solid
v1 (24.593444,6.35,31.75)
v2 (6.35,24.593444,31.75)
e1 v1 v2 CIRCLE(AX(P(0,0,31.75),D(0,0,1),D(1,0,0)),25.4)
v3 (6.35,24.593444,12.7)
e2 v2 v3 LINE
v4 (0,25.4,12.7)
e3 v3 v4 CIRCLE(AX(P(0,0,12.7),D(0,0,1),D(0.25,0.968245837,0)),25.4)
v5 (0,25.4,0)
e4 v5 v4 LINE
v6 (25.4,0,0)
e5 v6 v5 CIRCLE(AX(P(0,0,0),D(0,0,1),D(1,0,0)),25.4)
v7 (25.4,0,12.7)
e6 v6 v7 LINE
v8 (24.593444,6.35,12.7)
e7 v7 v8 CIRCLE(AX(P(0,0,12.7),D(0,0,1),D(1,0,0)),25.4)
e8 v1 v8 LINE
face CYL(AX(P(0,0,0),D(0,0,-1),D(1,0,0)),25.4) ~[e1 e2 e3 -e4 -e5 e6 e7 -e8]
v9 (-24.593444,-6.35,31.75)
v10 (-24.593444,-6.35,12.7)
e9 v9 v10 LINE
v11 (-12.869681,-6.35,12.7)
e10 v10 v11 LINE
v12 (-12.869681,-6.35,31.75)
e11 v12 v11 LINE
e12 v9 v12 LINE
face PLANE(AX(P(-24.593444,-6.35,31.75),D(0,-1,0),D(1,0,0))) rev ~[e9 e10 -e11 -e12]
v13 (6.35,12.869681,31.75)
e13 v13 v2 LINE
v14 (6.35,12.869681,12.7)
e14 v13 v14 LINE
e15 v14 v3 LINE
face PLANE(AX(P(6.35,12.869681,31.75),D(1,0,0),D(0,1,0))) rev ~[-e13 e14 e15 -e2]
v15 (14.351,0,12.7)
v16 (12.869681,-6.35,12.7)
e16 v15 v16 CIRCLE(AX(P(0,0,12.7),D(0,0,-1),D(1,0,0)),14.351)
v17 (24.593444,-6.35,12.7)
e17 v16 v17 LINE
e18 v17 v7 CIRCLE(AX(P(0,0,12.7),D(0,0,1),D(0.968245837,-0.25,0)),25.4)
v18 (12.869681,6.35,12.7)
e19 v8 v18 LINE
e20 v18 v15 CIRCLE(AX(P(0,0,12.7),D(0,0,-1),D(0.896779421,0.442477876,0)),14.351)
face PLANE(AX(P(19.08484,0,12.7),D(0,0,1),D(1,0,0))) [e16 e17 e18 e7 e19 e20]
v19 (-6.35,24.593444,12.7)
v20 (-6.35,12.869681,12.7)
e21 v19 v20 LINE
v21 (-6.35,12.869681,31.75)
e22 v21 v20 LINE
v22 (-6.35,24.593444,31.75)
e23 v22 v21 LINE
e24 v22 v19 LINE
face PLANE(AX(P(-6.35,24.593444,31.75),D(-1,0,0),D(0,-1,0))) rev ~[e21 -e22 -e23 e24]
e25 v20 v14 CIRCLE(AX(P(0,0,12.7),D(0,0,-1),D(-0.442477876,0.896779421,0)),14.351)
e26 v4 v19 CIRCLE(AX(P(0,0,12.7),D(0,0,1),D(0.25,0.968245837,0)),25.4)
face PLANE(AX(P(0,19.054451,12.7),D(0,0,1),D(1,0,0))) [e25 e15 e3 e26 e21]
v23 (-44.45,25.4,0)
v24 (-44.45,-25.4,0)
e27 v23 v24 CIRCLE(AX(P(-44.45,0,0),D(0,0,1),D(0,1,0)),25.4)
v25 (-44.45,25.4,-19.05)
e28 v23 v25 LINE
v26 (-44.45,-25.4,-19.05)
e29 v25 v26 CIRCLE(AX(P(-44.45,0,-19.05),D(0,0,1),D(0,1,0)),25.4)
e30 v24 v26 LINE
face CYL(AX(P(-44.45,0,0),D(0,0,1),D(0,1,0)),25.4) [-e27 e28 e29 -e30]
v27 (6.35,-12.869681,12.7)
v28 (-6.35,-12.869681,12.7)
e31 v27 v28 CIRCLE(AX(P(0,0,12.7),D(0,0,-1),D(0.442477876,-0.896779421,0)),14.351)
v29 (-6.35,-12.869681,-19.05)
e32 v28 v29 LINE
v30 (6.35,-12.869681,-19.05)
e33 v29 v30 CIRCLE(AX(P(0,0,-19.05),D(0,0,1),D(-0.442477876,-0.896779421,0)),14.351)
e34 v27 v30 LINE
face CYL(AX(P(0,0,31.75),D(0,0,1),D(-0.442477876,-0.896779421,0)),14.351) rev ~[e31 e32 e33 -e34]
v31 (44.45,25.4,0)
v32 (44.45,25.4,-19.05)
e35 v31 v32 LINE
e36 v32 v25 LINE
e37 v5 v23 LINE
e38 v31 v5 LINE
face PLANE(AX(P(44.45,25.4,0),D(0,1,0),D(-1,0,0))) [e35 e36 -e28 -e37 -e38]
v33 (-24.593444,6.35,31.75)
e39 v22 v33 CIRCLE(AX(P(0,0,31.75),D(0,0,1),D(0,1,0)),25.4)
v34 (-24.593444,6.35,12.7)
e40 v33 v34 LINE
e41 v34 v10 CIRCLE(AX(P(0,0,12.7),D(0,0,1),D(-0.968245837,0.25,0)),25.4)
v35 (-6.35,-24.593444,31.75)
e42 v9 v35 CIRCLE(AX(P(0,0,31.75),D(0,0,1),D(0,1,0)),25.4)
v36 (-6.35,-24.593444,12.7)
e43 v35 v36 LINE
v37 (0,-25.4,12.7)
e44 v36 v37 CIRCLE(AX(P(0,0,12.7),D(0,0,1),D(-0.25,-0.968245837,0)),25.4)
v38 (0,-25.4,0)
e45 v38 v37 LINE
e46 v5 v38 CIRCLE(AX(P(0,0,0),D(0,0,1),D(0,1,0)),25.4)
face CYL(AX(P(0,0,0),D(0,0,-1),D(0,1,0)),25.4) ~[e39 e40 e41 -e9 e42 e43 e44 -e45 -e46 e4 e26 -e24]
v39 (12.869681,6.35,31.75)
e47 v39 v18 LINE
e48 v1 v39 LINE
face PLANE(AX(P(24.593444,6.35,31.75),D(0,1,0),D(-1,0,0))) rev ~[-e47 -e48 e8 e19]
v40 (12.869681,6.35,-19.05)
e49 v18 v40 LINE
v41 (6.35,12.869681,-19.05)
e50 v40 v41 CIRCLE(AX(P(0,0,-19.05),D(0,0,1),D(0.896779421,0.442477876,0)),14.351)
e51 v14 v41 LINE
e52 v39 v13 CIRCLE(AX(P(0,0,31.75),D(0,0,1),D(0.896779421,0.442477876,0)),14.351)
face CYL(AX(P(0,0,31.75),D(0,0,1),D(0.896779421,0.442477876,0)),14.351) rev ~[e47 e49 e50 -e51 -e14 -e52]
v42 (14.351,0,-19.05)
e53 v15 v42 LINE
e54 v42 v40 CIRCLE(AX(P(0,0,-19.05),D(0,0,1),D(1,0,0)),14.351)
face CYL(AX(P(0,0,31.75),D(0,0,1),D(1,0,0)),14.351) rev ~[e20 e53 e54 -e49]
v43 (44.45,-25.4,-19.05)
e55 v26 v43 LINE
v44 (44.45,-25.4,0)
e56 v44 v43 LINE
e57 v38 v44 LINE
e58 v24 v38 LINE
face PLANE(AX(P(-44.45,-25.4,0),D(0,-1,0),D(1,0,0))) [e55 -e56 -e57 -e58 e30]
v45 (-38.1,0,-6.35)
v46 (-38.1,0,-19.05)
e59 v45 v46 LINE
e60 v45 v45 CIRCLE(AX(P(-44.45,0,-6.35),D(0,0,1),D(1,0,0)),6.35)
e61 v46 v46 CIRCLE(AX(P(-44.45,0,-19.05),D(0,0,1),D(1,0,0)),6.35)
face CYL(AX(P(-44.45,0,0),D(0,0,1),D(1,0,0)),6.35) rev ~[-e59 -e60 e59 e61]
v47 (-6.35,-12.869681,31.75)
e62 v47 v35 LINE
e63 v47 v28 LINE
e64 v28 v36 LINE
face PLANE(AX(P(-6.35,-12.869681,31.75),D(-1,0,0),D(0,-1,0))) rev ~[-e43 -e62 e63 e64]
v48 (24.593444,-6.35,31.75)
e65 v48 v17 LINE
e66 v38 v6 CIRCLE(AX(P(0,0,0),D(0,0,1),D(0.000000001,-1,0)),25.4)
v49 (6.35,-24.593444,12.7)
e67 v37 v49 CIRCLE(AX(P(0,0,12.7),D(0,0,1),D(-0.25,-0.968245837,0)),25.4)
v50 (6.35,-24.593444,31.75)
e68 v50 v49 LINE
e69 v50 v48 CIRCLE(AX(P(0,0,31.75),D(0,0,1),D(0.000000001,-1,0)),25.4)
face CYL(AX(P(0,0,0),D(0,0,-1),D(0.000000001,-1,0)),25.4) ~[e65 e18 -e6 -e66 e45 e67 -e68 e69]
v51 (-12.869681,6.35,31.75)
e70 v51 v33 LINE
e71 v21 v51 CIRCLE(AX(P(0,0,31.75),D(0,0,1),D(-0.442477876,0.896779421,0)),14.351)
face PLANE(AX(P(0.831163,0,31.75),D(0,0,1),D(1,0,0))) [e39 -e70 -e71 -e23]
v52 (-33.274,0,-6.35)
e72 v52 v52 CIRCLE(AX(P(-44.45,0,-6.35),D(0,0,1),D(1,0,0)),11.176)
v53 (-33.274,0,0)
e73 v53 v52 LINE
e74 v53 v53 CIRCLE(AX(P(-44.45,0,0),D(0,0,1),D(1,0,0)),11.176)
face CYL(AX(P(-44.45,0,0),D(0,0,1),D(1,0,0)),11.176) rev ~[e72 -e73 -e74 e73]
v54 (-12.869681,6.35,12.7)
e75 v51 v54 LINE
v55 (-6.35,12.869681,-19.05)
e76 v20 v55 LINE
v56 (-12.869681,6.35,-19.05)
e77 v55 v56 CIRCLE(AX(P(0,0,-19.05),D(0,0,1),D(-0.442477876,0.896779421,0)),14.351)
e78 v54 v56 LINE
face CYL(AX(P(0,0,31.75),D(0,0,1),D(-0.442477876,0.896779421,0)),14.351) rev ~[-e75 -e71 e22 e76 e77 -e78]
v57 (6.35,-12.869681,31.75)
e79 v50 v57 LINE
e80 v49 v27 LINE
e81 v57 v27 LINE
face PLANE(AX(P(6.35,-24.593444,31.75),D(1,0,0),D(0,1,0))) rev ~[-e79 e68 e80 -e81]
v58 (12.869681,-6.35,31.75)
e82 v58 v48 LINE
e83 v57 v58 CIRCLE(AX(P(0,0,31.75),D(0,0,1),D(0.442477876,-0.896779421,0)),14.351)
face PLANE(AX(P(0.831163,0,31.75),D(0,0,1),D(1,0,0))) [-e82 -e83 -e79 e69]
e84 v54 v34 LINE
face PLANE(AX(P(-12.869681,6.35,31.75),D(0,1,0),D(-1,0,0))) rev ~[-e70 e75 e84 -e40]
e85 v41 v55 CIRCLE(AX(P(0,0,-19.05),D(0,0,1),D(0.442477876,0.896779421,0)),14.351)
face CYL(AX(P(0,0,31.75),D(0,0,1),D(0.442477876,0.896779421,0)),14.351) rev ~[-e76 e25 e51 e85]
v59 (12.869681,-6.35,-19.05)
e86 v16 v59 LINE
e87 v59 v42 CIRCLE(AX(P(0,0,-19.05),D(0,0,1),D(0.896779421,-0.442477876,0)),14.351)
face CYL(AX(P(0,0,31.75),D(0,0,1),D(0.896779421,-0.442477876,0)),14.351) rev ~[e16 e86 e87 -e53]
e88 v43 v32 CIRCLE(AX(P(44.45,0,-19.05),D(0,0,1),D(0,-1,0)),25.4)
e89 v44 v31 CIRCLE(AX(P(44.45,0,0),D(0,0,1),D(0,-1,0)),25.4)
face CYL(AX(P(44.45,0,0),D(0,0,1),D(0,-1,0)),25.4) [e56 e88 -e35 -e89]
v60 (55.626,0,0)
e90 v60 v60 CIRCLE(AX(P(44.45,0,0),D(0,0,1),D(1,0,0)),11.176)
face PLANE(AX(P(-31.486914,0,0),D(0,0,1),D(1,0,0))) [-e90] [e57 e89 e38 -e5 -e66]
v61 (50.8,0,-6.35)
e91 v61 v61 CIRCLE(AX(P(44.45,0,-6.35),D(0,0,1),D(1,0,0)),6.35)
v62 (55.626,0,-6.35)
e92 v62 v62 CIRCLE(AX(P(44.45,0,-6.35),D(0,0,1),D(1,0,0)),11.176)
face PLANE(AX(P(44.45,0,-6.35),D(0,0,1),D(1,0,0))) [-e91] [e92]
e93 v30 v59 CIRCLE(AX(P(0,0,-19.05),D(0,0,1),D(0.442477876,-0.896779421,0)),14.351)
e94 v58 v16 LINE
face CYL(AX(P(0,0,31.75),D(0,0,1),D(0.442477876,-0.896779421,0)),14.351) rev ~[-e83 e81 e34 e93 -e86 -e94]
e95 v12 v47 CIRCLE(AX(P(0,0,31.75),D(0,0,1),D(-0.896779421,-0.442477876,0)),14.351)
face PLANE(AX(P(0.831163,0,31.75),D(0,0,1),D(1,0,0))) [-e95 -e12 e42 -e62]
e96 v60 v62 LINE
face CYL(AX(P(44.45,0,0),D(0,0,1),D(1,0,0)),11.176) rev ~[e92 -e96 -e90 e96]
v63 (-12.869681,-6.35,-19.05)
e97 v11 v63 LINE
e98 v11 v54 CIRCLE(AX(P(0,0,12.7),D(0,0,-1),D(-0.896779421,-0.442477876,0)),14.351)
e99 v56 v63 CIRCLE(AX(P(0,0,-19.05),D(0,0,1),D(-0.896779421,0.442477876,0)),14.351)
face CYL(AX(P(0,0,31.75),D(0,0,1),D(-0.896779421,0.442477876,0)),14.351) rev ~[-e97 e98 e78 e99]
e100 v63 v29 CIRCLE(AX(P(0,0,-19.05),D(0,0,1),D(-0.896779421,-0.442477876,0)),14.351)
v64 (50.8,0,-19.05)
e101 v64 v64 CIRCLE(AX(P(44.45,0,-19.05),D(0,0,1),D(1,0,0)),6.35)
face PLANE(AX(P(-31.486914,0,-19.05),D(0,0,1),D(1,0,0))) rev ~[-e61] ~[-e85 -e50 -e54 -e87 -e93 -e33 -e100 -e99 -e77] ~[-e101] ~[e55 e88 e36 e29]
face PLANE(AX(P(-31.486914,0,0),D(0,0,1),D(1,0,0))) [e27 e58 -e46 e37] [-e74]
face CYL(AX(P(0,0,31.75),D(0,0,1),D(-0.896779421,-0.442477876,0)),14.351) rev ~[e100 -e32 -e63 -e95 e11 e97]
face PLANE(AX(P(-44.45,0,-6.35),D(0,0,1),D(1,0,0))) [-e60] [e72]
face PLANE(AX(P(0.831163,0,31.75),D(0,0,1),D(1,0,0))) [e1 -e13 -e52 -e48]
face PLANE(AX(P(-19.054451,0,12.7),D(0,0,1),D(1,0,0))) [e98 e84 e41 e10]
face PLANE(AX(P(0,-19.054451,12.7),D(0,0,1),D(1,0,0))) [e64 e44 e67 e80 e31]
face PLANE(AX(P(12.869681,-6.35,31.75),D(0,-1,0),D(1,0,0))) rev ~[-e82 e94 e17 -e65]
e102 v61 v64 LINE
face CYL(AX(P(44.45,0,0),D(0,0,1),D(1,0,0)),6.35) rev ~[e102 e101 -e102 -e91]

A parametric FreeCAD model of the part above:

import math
import FreeCAD as App
import Part
import Sketcher
from FreeCAD import Vector
Q = App.Units.Quantity

doc = App.newDocument("Part")
body = doc.addObject("PartDesign::Body", "Body")

sketch1 = body.newObject("Sketcher::SketchObject", "Sketch")
sketch1.AttachmentSupport = (doc.getObject("XY_Plane"), [""])
sketch1.MapMode = "FlatFace"
sketch1.addGeometry([
    Part.ArcOfCircle(Part.Circle(Vector(-44, 0, 0), Vector(0, 0, 1), 25), math.radians(90), math.radians(270)),
    Part.LineSegment(Vector(-44, -25, 0), Vector(44, -25, 0)),
    Part.ArcOfCircle(Part.Circle(Vector(44, 0, 0), Vector(0, 0, 1), 25), math.radians(-90), math.radians(90)),
    Part.LineSegment(Vector(44, 25, 0), Vector(-44, 25, 0)),
    Part.Circle(Vector(-44, 0, 0), Vector(0, 0, 1), 6),
    Part.Circle(Vector(44, 0, 0), Vector(0, 0, 1), 6),
], False)
sketch1.addConstraint([
    Sketcher.Constraint("Tangent", 0, 2, 1, 1),
    Sketcher.Constraint("Tangent", 1, 2, 2, 1),
    Sketcher.Constraint("Tangent", 2, 2, 3, 1),
    Sketcher.Constraint("Tangent", 3, 2, 0, 1),
    Sketcher.Constraint("Horizontal", 1),
    Sketcher.Constraint("Horizontal", 3),
    Sketcher.Constraint("Coincident", 4, 3, 0, 3),
    Sketcher.Constraint("Coincident", 5, 3, 2, 3),
    Sketcher.Constraint("Equal", 4, 5),
    Sketcher.Constraint("Symmetric", 0, 3, 2, 3, -1, 1),
    Sketcher.Constraint("Radius", 0, Q("1 in")),
    Sketcher.Constraint("Diameter", 4, Q("0.5 in")),
    Sketcher.Constraint("DistanceX", 1, 1, 1, 2, Q("3.5 in")),
])
pad1 = body.newObject("PartDesign::Pad", "Pad")
pad1.Profile = sketch1
pad1.Length = Q("0.75 in")
pad1.Reversed = True

sketch2 = body.newObject("Sketcher::SketchObject", "Sketch001")
sketch2.AttachmentSupport = (doc.getObject("XY_Plane"), [""])
sketch2.MapMode = "FlatFace"
sketch2.addGeometry([
    Part.Circle(Vector(-44, 0, 0), Vector(0, 0, 1), 11),
    Part.Circle(Vector(-44, 0, 0), Vector(0, 0, 1), 6),
    Part.Circle(Vector(44, 0, 0), Vector(0, 0, 1), 11),
    Part.Circle(Vector(44, 0, 0), Vector(0, 0, 1), 6),
], False)
sketch2.addConstraint([
    Sketcher.Constraint("Coincident", 1, 3, 0, 3),
    Sketcher.Constraint("Coincident", 3, 3, 2, 3),
    Sketcher.Constraint("Equal", 0, 2),
    Sketcher.Constraint("Equal", 1, 3),
    Sketcher.Constraint("Symmetric", 0, 3, 2, 3, -1, 1),
    Sketcher.Constraint("PointOnObject", 0, 3, -1),
    Sketcher.Constraint("Diameter", 1, Q("0.5 in")),
    Sketcher.Constraint("Diameter", 0, Q("0.88 in")),
    Sketcher.Constraint("DistanceX", 0, 3, 2, 3, Q("3.5 in")),
])
pocket1 = body.newObject("PartDesign::Pocket", "Pocket")
pocket1.Profile = sketch2
pocket1.Length = Q("0.25 in")

sketch3 = body.newObject("Sketcher::SketchObject", "Sketch002")
sketch3.AttachmentSupport = (doc.getObject("XY_Plane"), [""])
sketch3.MapMode = "FlatFace"
sketch3.addGeometry([
    Part.ArcOfCircle(Part.Circle(Vector(0, 0, 0), Vector(0, 0, 1), 25), math.radians(90), math.radians(270)),
    Part.ArcOfCircle(Part.Circle(Vector(0, 0, 0), Vector(0, 0, 1), 25), math.radians(-90), math.radians(0)),
    Part.ArcOfCircle(Part.Circle(Vector(0, 0, 0), Vector(0, 0, 1), 25), math.radians(0), math.radians(90)),
], False)
sketch3.addConstraint([
    Sketcher.Constraint("Tangent", 0, 2, 1, 1),
    Sketcher.Constraint("Tangent", 1, 2, 2, 1),
    Sketcher.Constraint("Tangent", 2, 2, 0, 1),
    Sketcher.Constraint("Coincident", 0, 3, -1, 1),
    Sketcher.Constraint("PointOnObject", 0, 2, -2),
    Sketcher.Constraint("PointOnObject", 1, 2, -1),
    Sketcher.Constraint("PointOnObject", 2, 2, -2),
    Sketcher.Constraint("Radius", 0, Q("1 in")),
])
pad2 = body.newObject("PartDesign::Pad", "Pad001")
pad2.Profile = sketch3
pad2.Length = Q("1.25 in")

sketch4 = body.newObject("Sketcher::SketchObject", "Sketch003")
sketch4.AttachmentSupport = (doc.getObject("XY_Plane"), [""])
sketch4.MapMode = "FlatFace"
sketch4.AttachmentOffset = App.Placement(Vector(0, 0, 1.25 * 25.4), App.Rotation())
sketch4.addGeometry([
    Part.LineSegment(Vector(6, -25, 0), Vector(6, -13, 0)),
    Part.ArcOfCircle(Part.Circle(Vector(0, 0, 0), Vector(0, 0, 1), 14), math.radians(-116), math.radians(-64)),
    Part.LineSegment(Vector(-6, -13, 0), Vector(-6, -25, 0)),
    Part.ArcOfCircle(Part.Circle(Vector(0, 0, 0), Vector(0, 0, 1), 25), math.radians(-104), math.radians(-76)),
    Part.ArcOfCircle(Part.Circle(Vector(0, 0, 0), Vector(0, 0, 1), 14), math.radians(154), math.radians(206)),
    Part.LineSegment(Vector(-13, 6, 0), Vector(-25, 6, 0)),
    Part.ArcOfCircle(Part.Circle(Vector(0, 0, 0), Vector(0, 0, 1), 25), math.radians(166), math.radians(194)),
    Part.LineSegment(Vector(-25, -6, 0), Vector(-13, -6, 0)),
    Part.ArcOfCircle(Part.Circle(Vector(0, 0, 0), Vector(0, 0, 1), 14), math.radians(64), math.radians(116)),
    Part.LineSegment(Vector(6, 13, 0), Vector(6, 25, 0)),
    Part.ArcOfCircle(Part.Circle(Vector(0, 0, 0), Vector(0, 0, 1), 25), math.radians(76), math.radians(104)),
    Part.LineSegment(Vector(-6, 25, 0), Vector(-6, 13, 0)),
    Part.ArcOfCircle(Part.Circle(Vector(0, 0, 0), Vector(0, 0, 1), 14), math.radians(0), math.radians(26)),
    Part.ArcOfCircle(Part.Circle(Vector(0, 0, 0), Vector(0, 0, 1), 14), math.radians(-26), math.radians(0)),
    Part.LineSegment(Vector(13, -6, 0), Vector(25, -6, 0)),
    Part.ArcOfCircle(Part.Circle(Vector(0, 0, 0), Vector(0, 0, 1), 25), math.radians(-14.48), math.radians(0)),
    Part.ArcOfCircle(Part.Circle(Vector(0, 0, 0), Vector(0, 0, 1), 25), math.radians(0), math.radians(14.48)),
    Part.LineSegment(Vector(25, 6, 0), Vector(13, 6, 0)),
], False)
sketch4.addConstraint([
    Sketcher.Constraint("Coincident", 0, 2, 1, 2),
    Sketcher.Constraint("Coincident", 1, 1, 2, 1),
    Sketcher.Constraint("Coincident", 2, 2, 3, 1),
    Sketcher.Constraint("Coincident", 3, 2, 0, 1),
    Sketcher.Constraint("Coincident", 4, 1, 5, 1),
    Sketcher.Constraint("Coincident", 5, 2, 6, 1),
    Sketcher.Constraint("Coincident", 6, 2, 7, 1),
    Sketcher.Constraint("Coincident", 7, 2, 4, 2),
    Sketcher.Constraint("Coincident", 8, 1, 9, 1),
    Sketcher.Constraint("Coincident", 9, 2, 10, 1),
    Sketcher.Constraint("Coincident", 10, 2, 11, 1),
    Sketcher.Constraint("Coincident", 11, 2, 8, 2),
    Sketcher.Constraint("Tangent", 12, 1, 13, 2),
    Sketcher.Constraint("Coincident", 13, 1, 14, 1),
    Sketcher.Constraint("Coincident", 14, 2, 15, 1),
    Sketcher.Constraint("Tangent", 15, 2, 16, 1),
    Sketcher.Constraint("Coincident", 16, 2, 17, 1),
    Sketcher.Constraint("Coincident", 17, 2, 12, 2),
    Sketcher.Constraint("Vertical", 0),
    Sketcher.Constraint("Vertical", 2),
    Sketcher.Constraint("Horizontal", 5),
    Sketcher.Constraint("Horizontal", 7),
    Sketcher.Constraint("Vertical", 9),
    Sketcher.Constraint("Vertical", 11),
    Sketcher.Constraint("Horizontal", 14),
    Sketcher.Constraint("Horizontal", 17),
    Sketcher.Constraint("Coincident", 1, 3, -1, 1),
    Sketcher.Constraint("Coincident", 3, 3, -1, 1),
    Sketcher.Constraint("Coincident", 4, 3, -1, 1),
    Sketcher.Constraint("Coincident", 6, 3, -1, 1),
    Sketcher.Constraint("Coincident", 8, 3, -1, 1),
    Sketcher.Constraint("Coincident", 10, 3, -1, 1),
    Sketcher.Constraint("Coincident", 12, 3, -1, 1),
    Sketcher.Constraint("Coincident", 15, 3, -1, 1),
    Sketcher.Constraint("Equal", 1, 4),
    Sketcher.Constraint("Equal", 3, 6),
    Sketcher.Constraint("Equal", 4, 8),
    Sketcher.Constraint("Equal", 6, 10),
    Sketcher.Constraint("Equal", 8, 12),
    Sketcher.Constraint("Equal", 12, 13),
    Sketcher.Constraint("Equal", 10, 15),
    Sketcher.Constraint("Equal", 15, 16),
    Sketcher.Constraint("PointOnObject", 12, 1, -1),
    Sketcher.Constraint("PointOnObject", 15, 2, -1),
    Sketcher.Constraint("Horizontal", 0, 2, 1, 1),
    Sketcher.Constraint("Horizontal", 9, 2, 10, 2),
    Sketcher.Constraint("Horizontal", 7, 2, 13, 1),
    Sketcher.Constraint("Horizontal", 5, 2, 16, 2),
    Sketcher.Constraint("Vertical", 5, 2, 6, 2),
    Sketcher.Constraint("Vertical", 3, 2, 8, 1),
    Sketcher.Constraint("Equal", 17, 0),
    Sketcher.Constraint("Radius", 3, Q("1 in")),
    Sketcher.Constraint("Radius", 1, Q("0.565 in")),
    Sketcher.Constraint("DistanceX", 1, 1, 0, 2, Q("0.5 in")),
])
pocket2 = body.newObject("PartDesign::Pocket", "Pocket001")
pocket2.Profile = sketch4
pocket2.Length = Q("0.75 in")

sketch5 = body.newObject("Sketcher::SketchObject", "Sketch004")
sketch5.AttachmentSupport = (doc.getObject("XY_Plane"), [""])
sketch5.MapMode = "FlatFace"
sketch5.AttachmentOffset = App.Placement(Vector(0, 0, 1.25 * 25.4), App.Rotation())
sketch5.addGeometry([
    Part.ArcOfCircle(Part.Circle(Vector(0, 0, 0), Vector(0, 0, 1), 14), math.radians(-26), math.radians(0)),
    Part.ArcOfCircle(Part.Circle(Vector(0, 0, 0), Vector(0, 0, 1), 14), math.radians(0), math.radians(26)),
    Part.ArcOfCircle(Part.Circle(Vector(0, 0, 0), Vector(0, 0, 1), 14), math.radians(26), math.radians(64)),
    Part.ArcOfCircle(Part.Circle(Vector(0, 0, 0), Vector(0, 0, 1), 14), math.radians(64), math.radians(116)),
    Part.ArcOfCircle(Part.Circle(Vector(0, 0, 0), Vector(0, 0, 1), 14), math.radians(116), math.radians(154)),
    Part.ArcOfCircle(Part.Circle(Vector(0, 0, 0), Vector(0, 0, 1), 14), math.radians(154), math.radians(206)),
    Part.ArcOfCircle(Part.Circle(Vector(0, 0, 0), Vector(0, 0, 1), 14), math.radians(-154), math.radians(-116)),
    Part.ArcOfCircle(Part.Circle(Vector(0, 0, 0), Vector(0, 0, 1), 14), math.radians(-116), math.radians(-64)),
    Part.ArcOfCircle(Part.Circle(Vector(0, 0, 0), Vector(0, 0, 1), 14), math.radians(-64), math.radians(-26)),
], False)
sketch5.addConstraint([
    Sketcher.Constraint("Tangent", 0, 2, 1, 1),
    Sketcher.Constraint("Tangent", 1, 2, 2, 1),
    Sketcher.Constraint("Tangent", 2, 2, 3, 1),
    Sketcher.Constraint("Tangent", 3, 2, 4, 1),
    Sketcher.Constraint("Tangent", 4, 2, 5, 1),
    Sketcher.Constraint("Tangent", 5, 2, 6, 1),
    Sketcher.Constraint("Tangent", 6, 2, 7, 1),
    Sketcher.Constraint("Tangent", 7, 2, 8, 1),
    Sketcher.Constraint("Tangent", 8, 2, 0, 1),
    Sketcher.Constraint("Coincident", 0, 3, -1, 1),
    Sketcher.Constraint("Coincident", 2, 3, -1, 1),
    Sketcher.Constraint("Coincident", 4, 3, -1, 1),
    Sketcher.Constraint("Coincident", 6, 3, -1, 1),
    Sketcher.Constraint("PointOnObject", 0, 2, -1),
    Sketcher.Constraint("Horizontal", 2, 2, 3, 2),
    Sketcher.Constraint("Horizontal", 1, 2, 4, 2),
    Sketcher.Constraint("Horizontal", 6, 2, 7, 2),
    Sketcher.Constraint("Horizontal", 5, 2, 8, 2),
    Sketcher.Constraint("Vertical", 4, 2, 5, 2),
    Sketcher.Constraint("Vertical", 3, 2, 6, 2),
    Sketcher.Constraint("Radius", 0, Q("0.565 in")),
    Sketcher.Constraint("DistanceX", 3, 2, 2, 2, Q("0.5 in")),
    Sketcher.Constraint("DistanceY", 5, 2, 4, 2, Q("0.5 in")),
])
pocket3 = body.newObject("PartDesign::Pocket", "Pocket002")
pocket3.Profile = sketch5
pocket3.Type = "ThroughAll"

doc.recompute()
